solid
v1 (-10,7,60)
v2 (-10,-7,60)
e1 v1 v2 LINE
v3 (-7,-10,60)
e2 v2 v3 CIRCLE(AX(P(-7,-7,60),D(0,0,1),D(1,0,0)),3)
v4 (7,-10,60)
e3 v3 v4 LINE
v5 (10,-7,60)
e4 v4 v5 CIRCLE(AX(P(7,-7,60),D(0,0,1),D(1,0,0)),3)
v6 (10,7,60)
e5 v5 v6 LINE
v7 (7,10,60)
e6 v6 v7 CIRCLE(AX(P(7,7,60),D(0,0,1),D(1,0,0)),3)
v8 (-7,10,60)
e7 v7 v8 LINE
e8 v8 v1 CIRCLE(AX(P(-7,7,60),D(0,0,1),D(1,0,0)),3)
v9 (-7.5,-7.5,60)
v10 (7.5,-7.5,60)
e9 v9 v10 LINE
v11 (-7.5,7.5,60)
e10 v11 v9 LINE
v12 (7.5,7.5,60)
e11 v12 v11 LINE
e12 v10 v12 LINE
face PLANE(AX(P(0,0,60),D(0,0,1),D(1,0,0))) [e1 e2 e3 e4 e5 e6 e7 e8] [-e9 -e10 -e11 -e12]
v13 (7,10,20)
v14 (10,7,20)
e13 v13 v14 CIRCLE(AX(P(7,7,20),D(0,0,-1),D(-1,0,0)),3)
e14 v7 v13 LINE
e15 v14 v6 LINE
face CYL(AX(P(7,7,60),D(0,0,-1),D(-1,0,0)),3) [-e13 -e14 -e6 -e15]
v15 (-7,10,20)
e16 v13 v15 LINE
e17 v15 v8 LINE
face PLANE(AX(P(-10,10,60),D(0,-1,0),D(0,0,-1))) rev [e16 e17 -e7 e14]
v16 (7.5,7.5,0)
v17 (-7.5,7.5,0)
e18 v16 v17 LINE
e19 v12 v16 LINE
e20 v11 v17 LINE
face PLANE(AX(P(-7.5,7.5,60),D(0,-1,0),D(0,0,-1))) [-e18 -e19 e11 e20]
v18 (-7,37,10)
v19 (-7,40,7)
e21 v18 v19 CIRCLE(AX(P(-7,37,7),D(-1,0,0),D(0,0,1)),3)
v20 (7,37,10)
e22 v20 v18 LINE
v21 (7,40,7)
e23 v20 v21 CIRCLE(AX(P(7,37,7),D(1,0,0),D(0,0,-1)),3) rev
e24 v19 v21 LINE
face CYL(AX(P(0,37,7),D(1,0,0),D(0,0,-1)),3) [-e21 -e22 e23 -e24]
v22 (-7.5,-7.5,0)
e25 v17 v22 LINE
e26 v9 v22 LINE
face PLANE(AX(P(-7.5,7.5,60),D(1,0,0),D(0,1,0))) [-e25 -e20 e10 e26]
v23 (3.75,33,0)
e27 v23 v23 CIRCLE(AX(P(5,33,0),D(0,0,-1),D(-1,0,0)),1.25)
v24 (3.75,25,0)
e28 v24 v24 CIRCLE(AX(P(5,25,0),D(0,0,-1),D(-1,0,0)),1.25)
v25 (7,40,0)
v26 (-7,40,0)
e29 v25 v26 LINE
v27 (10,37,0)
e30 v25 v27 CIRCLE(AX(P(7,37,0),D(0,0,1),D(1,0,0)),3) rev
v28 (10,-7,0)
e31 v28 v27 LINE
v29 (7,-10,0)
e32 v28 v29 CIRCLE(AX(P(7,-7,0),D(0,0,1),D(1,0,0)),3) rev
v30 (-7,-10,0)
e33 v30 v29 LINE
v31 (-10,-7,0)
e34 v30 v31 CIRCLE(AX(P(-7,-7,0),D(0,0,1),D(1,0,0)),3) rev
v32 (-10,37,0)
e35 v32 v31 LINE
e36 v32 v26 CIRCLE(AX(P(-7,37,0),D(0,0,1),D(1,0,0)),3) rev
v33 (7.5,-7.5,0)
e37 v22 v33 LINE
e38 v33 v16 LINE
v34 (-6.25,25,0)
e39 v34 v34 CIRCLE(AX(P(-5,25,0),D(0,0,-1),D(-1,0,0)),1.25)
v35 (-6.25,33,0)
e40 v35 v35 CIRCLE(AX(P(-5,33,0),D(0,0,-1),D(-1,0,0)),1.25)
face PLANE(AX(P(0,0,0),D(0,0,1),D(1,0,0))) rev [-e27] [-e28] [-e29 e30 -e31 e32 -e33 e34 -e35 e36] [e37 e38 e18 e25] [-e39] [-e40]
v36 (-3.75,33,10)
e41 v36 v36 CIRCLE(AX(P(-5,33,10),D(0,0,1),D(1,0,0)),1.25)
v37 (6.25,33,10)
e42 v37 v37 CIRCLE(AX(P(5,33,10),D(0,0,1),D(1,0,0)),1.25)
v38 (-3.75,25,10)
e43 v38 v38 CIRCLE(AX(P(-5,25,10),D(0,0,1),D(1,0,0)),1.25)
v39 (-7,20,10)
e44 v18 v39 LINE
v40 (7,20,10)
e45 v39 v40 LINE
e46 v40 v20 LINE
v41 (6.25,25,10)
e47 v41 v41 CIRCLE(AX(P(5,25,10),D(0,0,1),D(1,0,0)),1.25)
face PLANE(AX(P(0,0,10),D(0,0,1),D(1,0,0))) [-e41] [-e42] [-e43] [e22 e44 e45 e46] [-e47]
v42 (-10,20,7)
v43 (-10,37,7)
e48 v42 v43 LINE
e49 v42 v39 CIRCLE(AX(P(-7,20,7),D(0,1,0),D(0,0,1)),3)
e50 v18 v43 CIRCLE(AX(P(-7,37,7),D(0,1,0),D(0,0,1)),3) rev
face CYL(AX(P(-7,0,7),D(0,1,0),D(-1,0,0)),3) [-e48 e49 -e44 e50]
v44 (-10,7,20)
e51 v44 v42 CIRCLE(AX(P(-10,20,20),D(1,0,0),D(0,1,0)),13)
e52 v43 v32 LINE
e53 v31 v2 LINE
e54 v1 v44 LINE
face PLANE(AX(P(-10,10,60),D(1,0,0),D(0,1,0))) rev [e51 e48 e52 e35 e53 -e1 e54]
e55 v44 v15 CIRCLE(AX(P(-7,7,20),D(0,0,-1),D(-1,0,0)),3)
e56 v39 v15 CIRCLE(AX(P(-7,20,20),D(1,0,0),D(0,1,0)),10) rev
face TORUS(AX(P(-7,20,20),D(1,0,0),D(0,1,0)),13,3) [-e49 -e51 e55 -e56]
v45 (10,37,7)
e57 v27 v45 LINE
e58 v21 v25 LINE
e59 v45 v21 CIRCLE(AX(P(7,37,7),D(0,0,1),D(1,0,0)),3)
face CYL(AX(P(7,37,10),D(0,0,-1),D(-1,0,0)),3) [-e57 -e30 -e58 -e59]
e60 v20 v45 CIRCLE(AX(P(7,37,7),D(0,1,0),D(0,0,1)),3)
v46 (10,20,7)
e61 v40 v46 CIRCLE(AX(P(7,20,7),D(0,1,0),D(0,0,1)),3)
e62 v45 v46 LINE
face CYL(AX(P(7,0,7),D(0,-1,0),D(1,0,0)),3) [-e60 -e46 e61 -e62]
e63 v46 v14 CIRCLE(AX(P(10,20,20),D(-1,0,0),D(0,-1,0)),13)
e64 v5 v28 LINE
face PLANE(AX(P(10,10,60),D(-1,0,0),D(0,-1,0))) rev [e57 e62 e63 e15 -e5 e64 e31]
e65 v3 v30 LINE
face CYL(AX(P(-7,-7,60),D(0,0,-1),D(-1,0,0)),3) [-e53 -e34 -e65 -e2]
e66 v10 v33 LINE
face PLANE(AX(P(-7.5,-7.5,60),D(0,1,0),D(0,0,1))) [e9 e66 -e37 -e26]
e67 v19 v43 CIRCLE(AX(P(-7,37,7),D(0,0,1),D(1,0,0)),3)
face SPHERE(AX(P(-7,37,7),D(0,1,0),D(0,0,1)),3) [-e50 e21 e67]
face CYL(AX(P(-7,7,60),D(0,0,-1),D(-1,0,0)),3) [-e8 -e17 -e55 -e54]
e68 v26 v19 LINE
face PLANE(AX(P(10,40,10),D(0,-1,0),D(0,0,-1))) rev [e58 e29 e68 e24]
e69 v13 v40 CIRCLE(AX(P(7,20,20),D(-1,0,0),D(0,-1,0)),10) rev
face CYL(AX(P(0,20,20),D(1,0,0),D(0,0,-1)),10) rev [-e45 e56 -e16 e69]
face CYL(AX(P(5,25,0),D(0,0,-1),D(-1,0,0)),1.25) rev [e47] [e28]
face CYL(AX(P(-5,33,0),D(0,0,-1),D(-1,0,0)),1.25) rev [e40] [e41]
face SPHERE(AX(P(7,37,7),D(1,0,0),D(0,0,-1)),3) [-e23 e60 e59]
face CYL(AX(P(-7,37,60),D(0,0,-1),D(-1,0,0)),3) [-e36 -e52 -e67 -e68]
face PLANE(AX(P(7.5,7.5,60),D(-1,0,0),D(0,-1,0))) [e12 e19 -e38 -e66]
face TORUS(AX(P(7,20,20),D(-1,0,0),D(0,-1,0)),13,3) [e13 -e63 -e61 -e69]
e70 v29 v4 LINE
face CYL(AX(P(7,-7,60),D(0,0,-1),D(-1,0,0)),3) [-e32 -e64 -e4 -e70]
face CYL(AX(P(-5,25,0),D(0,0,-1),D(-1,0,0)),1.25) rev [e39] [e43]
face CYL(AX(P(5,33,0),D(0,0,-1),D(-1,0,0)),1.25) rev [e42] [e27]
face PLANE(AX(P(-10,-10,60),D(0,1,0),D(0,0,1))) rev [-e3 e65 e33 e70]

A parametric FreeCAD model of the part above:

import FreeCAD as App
import Part
import Sketcher
Q = App.Units.Quantity


def edges_at(feature, points):
    """Names of the edges that pass closest to the given points."""
    edges = feature.Shape.Edges
    near = lambda p: min(range(len(edges)), key=lambda i: edges[i].distToShape(Part.Vertex(*p))[0])
    return sorted({f"Edge{near(p) + 1}" for p in points})


def add_polygon(sketch, points):
    """Adds a closed chain of lines whose ends are joined by coincident constraints."""
    first, n = sketch.GeometryCount, len(points)
    for a, b in zip(points, points[1:] + points[:1]):
        sketch.addGeometry(Part.LineSegment(App.Vector(*a, 0), App.Vector(*b, 0)), False)
    for i in range(n):
        sketch.addConstraint(Sketcher.Constraint("Coincident", first + i, 2, first + (i + 1) % n, 1))

doc = App.newDocument("Part")
body = doc.addObject("PartDesign::Body", "Body")

sketch1 = body.newObject("Sketcher::SketchObject", "Sketch")
sketch1.AttachmentSupport = (doc.getObject("XY_Plane"), [""])
sketch1.MapMode = "FlatFace"
add_polygon(sketch1, [(-10, 10), (-10, -10), (10, -10), (10, 10)])
add_polygon(sketch1, [(8, -8), (-8, -8), (-8, 8), (8, 8)])
sketch1.addConstraint([
    Sketcher.Constraint("Vertical", 0),
    Sketcher.Constraint("Horizontal", 1),
    Sketcher.Constraint("Vertical", 2),
    Sketcher.Constraint("Horizontal", 3),
    Sketcher.Constraint("Horizontal", 4),
    Sketcher.Constraint("Vertical", 5),
    Sketcher.Constraint("Horizontal", 6),
    Sketcher.Constraint("Vertical", 7),
    Sketcher.Constraint("Symmetric", 0, 2, 2, 2, -1, 1),
    Sketcher.Constraint("Symmetric", 4, 2, 6, 2, -1, 1),
    Sketcher.Constraint("Equal", 3, 0),
    Sketcher.Constraint("Equal", 6, 5),
    Sketcher.Constraint("DistanceX", 1, 1, 1, 2, Q("20 mm")),
    Sketcher.Constraint("DistanceX", 4, 2, 4, 1, Q("15 mm")),
])
pad1 = body.newObject("PartDesign::Pad", "Pad")
pad1.Profile = sketch1
pad1.Length = 60

sketch2 = body.newObject("Sketcher::SketchObject", "Sketch001")
sketch2.AttachmentSupport = (doc.getObject("XY_Plane"), [""])
sketch2.MapMode = "FlatFace"
add_polygon(sketch2, [(-10, 40), (-10, 10), (10, 10), (10, 40)])
sketch2.addConstraint([
    Sketcher.Constraint("Vertical", 0),
    Sketcher.Constraint("Horizontal", 1),
    Sketcher.Constraint("Vertical", 2),
    Sketcher.Constraint("Horizontal", 3),
    Sketcher.Constraint("DistanceX", 1, 1, 1, 2, Q("20 mm")),
    Sketcher.Constraint("DistanceY", 0, 2, 0, 1, Q("30 mm")),
    Sketcher.Constraint("DistanceX", 0, 2, -1, 1, Q("10 mm")),
    Sketcher.Constraint("DistanceY", -1, 1, 0, 2, Q("10 mm")),
])
pad2 = body.newObject("PartDesign::Pad", "Pad001")
pad2.Profile = sketch2
pad2.Length = 10

sketch3 = body.newObject("Sketcher::SketchObject", "Sketch002")
sketch3.AttachmentSupport = (doc.getObject("XY_Plane"), [""])
sketch3.MapMode = "FlatFace"
sketch3.addGeometry([
    Part.Circle(App.Vector(5, 25, 0), App.Vector(0, 0, 1), 1.2),
    Part.Circle(App.Vector(5, 33, 0), App.Vector(0, 0, 1), 1.2),
    Part.Circle(App.Vector(-5, 33, 0), App.Vector(0, 0, 1), 1.2),
    Part.Circle(App.Vector(-5, 25, 0), App.Vector(0, 0, 1), 1.2),
], False)
sketch3.addConstraint([
    Sketcher.Constraint("Equal", 0, 1),
    Sketcher.Constraint("Equal", 1, 2),
    Sketcher.Constraint("Equal", 2, 3),
    Sketcher.Constraint("Symmetric", 1, 3, 2, 3, -2),
    Sketcher.Constraint("Symmetric", 0, 3, 3, 3, -2),
    Sketcher.Constraint("Vertical", 0, 3, 1, 3),
    Sketcher.Constraint("Diameter", 0, Q("2.5 mm")),
    Sketcher.Constraint("DistanceX", -1, 1, 0, 3, Q("5 mm")),
    Sketcher.Constraint("DistanceY", -1, 1, 0, 3, Q("25 mm")),
    Sketcher.Constraint("DistanceY", -1, 1, 1, 3, Q("33 mm")),
])
doc.recompute()
hole = body.newObject("PartDesign::Hole", "Hole")
hole.Profile = sketch3
hole.ThreadType = "None"
hole.Diameter = 2.5
hole.DepthType = "ThroughAll"
hole.Reversed = True
doc.recompute()

fillet = body.newObject("PartDesign::Fillet", "Fillet")
fillet.Base = (hole, edges_at(hole, [(0, 10, 10)]))
fillet.Radius = 10
doc.recompute()

fillet2 = body.newObject("PartDesign::Fillet", "Fillet001")
fillet2.Base = (fillet, edges_at(fillet, [
    (10, 40, 5),
    (-10, 40, 5),
    (0, 40, 10),
    (-10, 30, 10),
    (10, 30, 10),
    (10, 12.929, 12.929),
    (-10, 12.929, 12.929),
    (-10, 10, 40),
    (10, 10, 40),
]))
fillet2.Radius = 3
doc.recompute()

fillet3 = body.newObject("PartDesign::Fillet", "Fillet002")
fillet3.Base = (fillet2, edges_at(fillet2, [(10, -10, 30), (-10, -10, 30)]))
fillet3.Radius = 3

doc.recompute()
